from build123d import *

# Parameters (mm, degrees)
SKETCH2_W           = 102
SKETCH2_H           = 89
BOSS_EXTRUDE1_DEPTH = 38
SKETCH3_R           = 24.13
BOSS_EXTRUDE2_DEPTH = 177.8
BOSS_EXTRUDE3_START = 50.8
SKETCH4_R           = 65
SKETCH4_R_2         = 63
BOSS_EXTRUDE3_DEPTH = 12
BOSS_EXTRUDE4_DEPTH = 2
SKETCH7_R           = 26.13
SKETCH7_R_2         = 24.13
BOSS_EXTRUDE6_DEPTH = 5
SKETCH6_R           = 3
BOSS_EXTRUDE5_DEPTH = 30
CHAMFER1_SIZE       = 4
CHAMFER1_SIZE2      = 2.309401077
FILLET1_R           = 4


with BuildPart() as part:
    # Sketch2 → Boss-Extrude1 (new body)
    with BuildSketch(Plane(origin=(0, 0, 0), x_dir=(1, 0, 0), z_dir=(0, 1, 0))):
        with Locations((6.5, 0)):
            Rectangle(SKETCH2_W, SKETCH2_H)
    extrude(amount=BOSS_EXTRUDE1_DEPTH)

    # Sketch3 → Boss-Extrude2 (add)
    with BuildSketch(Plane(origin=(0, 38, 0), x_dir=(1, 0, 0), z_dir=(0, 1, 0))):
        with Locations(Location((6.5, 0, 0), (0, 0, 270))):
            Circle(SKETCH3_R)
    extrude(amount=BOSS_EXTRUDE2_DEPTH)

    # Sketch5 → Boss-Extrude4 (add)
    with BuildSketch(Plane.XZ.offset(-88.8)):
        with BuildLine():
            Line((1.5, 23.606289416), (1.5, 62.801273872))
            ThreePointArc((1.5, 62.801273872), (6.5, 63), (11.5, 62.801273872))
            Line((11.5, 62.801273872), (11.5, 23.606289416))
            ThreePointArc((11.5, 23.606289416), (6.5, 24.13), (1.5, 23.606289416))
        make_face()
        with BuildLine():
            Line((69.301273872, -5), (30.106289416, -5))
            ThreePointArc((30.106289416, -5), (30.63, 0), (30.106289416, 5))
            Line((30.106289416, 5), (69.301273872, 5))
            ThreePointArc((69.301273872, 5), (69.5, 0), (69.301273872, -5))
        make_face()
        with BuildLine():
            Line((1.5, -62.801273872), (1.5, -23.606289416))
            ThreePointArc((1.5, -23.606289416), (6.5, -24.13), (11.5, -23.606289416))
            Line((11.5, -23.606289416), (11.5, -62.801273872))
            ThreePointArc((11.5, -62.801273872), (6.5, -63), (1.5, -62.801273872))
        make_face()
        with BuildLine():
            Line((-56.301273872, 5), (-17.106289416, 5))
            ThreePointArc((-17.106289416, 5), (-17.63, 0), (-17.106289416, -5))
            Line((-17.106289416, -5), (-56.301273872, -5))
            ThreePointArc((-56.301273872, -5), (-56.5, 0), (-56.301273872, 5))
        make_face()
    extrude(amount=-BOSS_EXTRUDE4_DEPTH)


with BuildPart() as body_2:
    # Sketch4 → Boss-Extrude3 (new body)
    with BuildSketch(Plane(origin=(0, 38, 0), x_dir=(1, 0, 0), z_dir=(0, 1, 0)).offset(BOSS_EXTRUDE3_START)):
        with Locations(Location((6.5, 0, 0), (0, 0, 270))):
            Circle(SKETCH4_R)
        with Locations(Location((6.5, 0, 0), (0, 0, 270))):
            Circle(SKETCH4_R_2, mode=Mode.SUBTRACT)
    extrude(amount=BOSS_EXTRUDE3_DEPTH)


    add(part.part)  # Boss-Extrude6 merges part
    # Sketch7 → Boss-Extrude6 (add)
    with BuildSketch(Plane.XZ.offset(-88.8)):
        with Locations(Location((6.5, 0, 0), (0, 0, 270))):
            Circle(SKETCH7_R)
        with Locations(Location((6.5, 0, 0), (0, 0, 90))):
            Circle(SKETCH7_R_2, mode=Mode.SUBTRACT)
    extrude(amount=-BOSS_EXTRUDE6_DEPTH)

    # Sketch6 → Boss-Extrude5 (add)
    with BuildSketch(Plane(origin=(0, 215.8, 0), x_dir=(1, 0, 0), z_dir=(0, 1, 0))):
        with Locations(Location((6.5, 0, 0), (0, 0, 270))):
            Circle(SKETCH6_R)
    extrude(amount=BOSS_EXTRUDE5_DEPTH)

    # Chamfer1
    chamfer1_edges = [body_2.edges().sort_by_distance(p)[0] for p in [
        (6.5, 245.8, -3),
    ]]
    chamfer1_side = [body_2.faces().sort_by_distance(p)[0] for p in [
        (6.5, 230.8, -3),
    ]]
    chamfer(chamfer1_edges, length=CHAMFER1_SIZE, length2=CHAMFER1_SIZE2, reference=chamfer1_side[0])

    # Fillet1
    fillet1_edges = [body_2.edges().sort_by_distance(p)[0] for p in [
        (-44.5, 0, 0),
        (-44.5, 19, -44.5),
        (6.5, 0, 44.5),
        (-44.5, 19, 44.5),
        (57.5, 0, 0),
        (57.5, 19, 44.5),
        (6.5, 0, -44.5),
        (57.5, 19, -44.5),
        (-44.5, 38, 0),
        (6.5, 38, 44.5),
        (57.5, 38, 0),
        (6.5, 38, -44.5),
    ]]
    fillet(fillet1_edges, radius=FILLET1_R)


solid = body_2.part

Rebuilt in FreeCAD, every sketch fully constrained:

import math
import FreeCAD as App
import Part
import Sketcher

V = App.Vector
Q = App.Units.Quantity


def edges_at(feature, points):
    """Names of the edges that pass closest to the given points."""
    edges = feature.Shape.Edges
    near = lambda p: min(range(len(edges)), key=lambda i: edges[i].distToShape(Part.Vertex(*p))[0])
    return sorted({f"Edge{near(p) + 1}" for p in points})

doc = App.newDocument("Part")
body = doc.addObject("PartDesign::Body", "Body")

sketch1 = doc.addObject("Sketcher::SketchObject", "Sketch")
body.addObject(sketch1)
sketch1.AttachmentSupport = (doc.XZ_Plane, [""])
sketch1.MapMode = "FlatFace"
sketch1.addGeometry([
    Part.LineSegment(V(-44.5, -44.5, 0), V(-44.5, 44.5, 0)),
    Part.LineSegment(V(-44.5, 44.5, 0), V(57.5, 44.5, 0)),
    Part.LineSegment(V(57.5, 44.5, 0), V(57.5, -44.5, 0)),
    Part.LineSegment(V(57.5, -44.5, 0), V(-44.5, -44.5, 0)),
], False)
sketch1.addConstraint([
    Sketcher.Constraint("Coincident", 0, 2, 1, 1),
    Sketcher.Constraint("Coincident", 1, 2, 2, 1),
    Sketcher.Constraint("Coincident", 2, 2, 3, 1),
    Sketcher.Constraint("Coincident", 3, 2, 0, 1),
    Sketcher.Constraint("Vertical", 0),
    Sketcher.Constraint("Horizontal", 1),
    Sketcher.Constraint("Vertical", 2),
    Sketcher.Constraint("Horizontal", 3),
    Sketcher.Constraint("DistanceX", 1, 1, 1, 2, Q("102 mm")),
    Sketcher.Constraint("DistanceY", 0, 1, 0, 2, Q("89 mm")),
    Sketcher.Constraint("DistanceX", 0, 2, -1, 1, Q("44.5 mm")),
    Sketcher.Constraint("DistanceY", -1, 1, 0, 2, Q("44.5 mm")),
])
pad1 = doc.addObject("PartDesign::Pad", "Pad")
body.addObject(pad1)
pad1.Profile = sketch1
pad1.Length = 38
pad1.Reversed = True

sketch2 = doc.addObject("Sketcher::SketchObject", "Sketch001")
body.addObject(sketch2)
sketch2.AttachmentSupport = (doc.XZ_Plane, [""])
sketch2.MapMode = "FlatFace"
sketch2.AttachmentOffset = App.Placement(V(0, 0, -38), App.Rotation())
sketch2.addGeometry(Part.Circle(V(6.5, 0, 0), V(0, 0, 1), 24.13), False)
sketch2.addConstraint([
    Sketcher.Constraint("PointOnObject", 0, 3, -1),
    Sketcher.Constraint("Diameter", 0, Q("48.26 mm")),
    Sketcher.Constraint("DistanceX", -1, 1, 0, 3, Q("6.5 mm")),
])
pad2 = doc.addObject("PartDesign::Pad", "Pad001")
body.addObject(pad2)
pad2.Profile = sketch2
pad2.Length = 177.8
pad2.Reversed = True

sketch3 = doc.addObject("Sketcher::SketchObject", "Sketch002")
body.addObject(sketch3)
sketch3.AttachmentSupport = (doc.XZ_Plane, [""])
sketch3.MapMode = "FlatFace"
sketch3.AttachmentOffset = App.Placement(V(0, 0, -88.8), App.Rotation())
sketch3.addGeometry([
    Part.LineSegment(V(1.5, 62.801274, 0), V(1.5, 23.606289, 0)),
    Part.ArcOfCircle(Part.Circle(V(6.5, 0, 0), V(0, 0, 1), 24.13), math.radians(78.041044), math.radians(101.958956)),
    Part.LineSegment(V(11.5, 23.606289, 0), V(11.5, 62.801274, 0)),
    Part.ArcOfCircle(Part.Circle(V(6.5, 0, 0), V(0, 0, 1), 63), math.radians(85.447929), math.radians(94.552071)),
    Part.LineSegment(V(30.106289, -5, 0), V(69.301274, -5, 0)),
    Part.ArcOfCircle(Part.Circle(V(6.5, 0, 0), V(0, 0, 1), 63), math.radians(-4.552071), math.radians(4.552071)),
    Part.LineSegment(V(69.301274, 5, 0), V(30.106289, 5, 0)),
    Part.ArcOfCircle(Part.Circle(V(6.5, 0, 0), V(0, 0, 1), 24.13), math.radians(-11.958956), math.radians(11.958956)),
    Part.LineSegment(V(1.5, -23.606289, 0), V(1.5, -62.801274, 0)),
    Part.ArcOfCircle(Part.Circle(V(6.5, 0, 0), V(0, 0, 1), 63), math.radians(-94.552071), math.radians(-85.447929)),
    Part.LineSegment(V(11.5, -62.801274, 0), V(11.5, -23.606289, 0)),
    Part.ArcOfCircle(Part.Circle(V(6.5, 0, 0), V(0, 0, 1), 24.13), math.radians(-101.958956), math.radians(-78.041044)),
    Part.LineSegment(V(-17.106289, 5, 0), V(-56.301274, 5, 0)),
    Part.ArcOfCircle(Part.Circle(V(6.5, 0, 0), V(0, 0, 1), 63), math.radians(175.447929), math.radians(184.552071)),
    Part.LineSegment(V(-56.301274, -5, 0), V(-17.106289, -5, 0)),
    Part.ArcOfCircle(Part.Circle(V(6.5, 0, 0), V(0, 0, 1), 24.13), math.radians(168.041044), math.radians(191.958956)),
], False)
sketch3.addConstraint([
    Sketcher.Constraint("Coincident", 0, 2, 1, 2),
    Sketcher.Constraint("Coincident", 1, 1, 2, 1),
    Sketcher.Constraint("Coincident", 2, 2, 3, 1),
    Sketcher.Constraint("Coincident", 3, 2, 0, 1),
    Sketcher.Constraint("Coincident", 4, 2, 5, 1),
    Sketcher.Constraint("Coincident", 5, 2, 6, 1),
    Sketcher.Constraint("Coincident", 6, 2, 7, 2),
    Sketcher.Constraint("Coincident", 7, 1, 4, 1),
    Sketcher.Constraint("Coincident", 8, 2, 9, 1),
    Sketcher.Constraint("Coincident", 9, 2, 10, 1),
    Sketcher.Constraint("Coincident", 10, 2, 11, 2),
    Sketcher.Constraint("Coincident", 11, 1, 8, 1),
    Sketcher.Constraint("Coincident", 12, 2, 13, 1),
    Sketcher.Constraint("Coincident", 13, 2, 14, 1),
    Sketcher.Constraint("Coincident", 14, 2, 15, 2),
    Sketcher.Constraint("Coincident", 15, 1, 12, 1),
    Sketcher.Constraint("Vertical", 0),
    Sketcher.Constraint("Vertical", 2),
    Sketcher.Constraint("Horizontal", 4),
    Sketcher.Constraint("Horizontal", 6),
    Sketcher.Constraint("Vertical", 8),
    Sketcher.Constraint("Vertical", 10),
    Sketcher.Constraint("Horizontal", 12),
    Sketcher.Constraint("Horizontal", 14),
    Sketcher.Constraint("Coincident", 3, 3, 1, 3),
    Sketcher.Constraint("Coincident", 5, 3, 1, 3),
    Sketcher.Constraint("Coincident", 7, 3, 1, 3),
    Sketcher.Constraint("Coincident", 9, 3, 1, 3),
    Sketcher.Constraint("Coincident", 11, 3, 1, 3),
    Sketcher.Constraint("Coincident", 13, 3, 1, 3),
    Sketcher.Constraint("Coincident", 15, 3, 1, 3),
    Sketcher.Constraint("Equal", 3, 5),
    Sketcher.Constraint("Equal", 1, 7),
    Sketcher.Constraint("Equal", 5, 9),
    Sketcher.Constraint("Equal", 7, 11),
    Sketcher.Constraint("Equal", 9, 13),
    Sketcher.Constraint("Equal", 11, 15),
    Sketcher.Constraint("Symmetric", 4, 2, 5, 2, -1),
    Sketcher.Constraint("Horizontal", 0, 2, 1, 1),
    Sketcher.Constraint("Horizontal", 8, 2, 9, 2),
    Sketcher.Constraint("Horizontal", 6, 2, 12, 2),
    Sketcher.Constraint("Horizontal", 7, 1, 13, 2),
    Sketcher.Constraint("Vertical", 3, 2, 8, 2),
    Sketcher.Constraint("Equal", 14, 0),
    Sketcher.Constraint("Radius", 3, Q("63 mm")),
    Sketcher.Constraint("Radius", 1, Q("24.13 mm")),
    Sketcher.Constraint("DistanceY", 4, 2, -1, 1, Q("5 mm")),
    Sketcher.Constraint("DistanceX", -1, 1, 1, 3, Q("6.5 mm")),
])
pad3 = doc.addObject("PartDesign::Pad", "Pad002")
body.addObject(pad3)
pad3.Profile = sketch3
pad3.Length = 2
pad3.Reversed = True
body2 = doc.addObject("PartDesign::Body", "Body001")

sketch4 = doc.addObject("Sketcher::SketchObject", "Sketch003")
body2.addObject(sketch4)
sketch4.AttachmentSupport = (doc.getObject("XZ_Plane001"), [""])
sketch4.MapMode = "FlatFace"
sketch4.AttachmentOffset = App.Placement(V(0, 0, -88.8), App.Rotation())
sketch4.addGeometry([
    Part.Circle(V(6.5, 0, 0), V(0, 0, 1), 65),
    Part.Circle(V(6.5, 0, 0), V(0, 0, 1), 63),
], False)
sketch4.addConstraint([
    Sketcher.Constraint("Coincident", 1, 3, 0, 3),
    Sketcher.Constraint("PointOnObject", 0, 3, -1),
    Sketcher.Constraint("Diameter", 0, Q("130 mm")),
    Sketcher.Constraint("Diameter", 1, Q("126 mm")),
    Sketcher.Constraint("DistanceX", -1, 1, 0, 3, Q("6.5 mm")),
])
pad4 = doc.addObject("PartDesign::Pad", "Pad003")
body2.addObject(pad4)
pad4.Profile = sketch4
pad4.Length = 12
pad4.Reversed = True
doc.recompute()

boolean = doc.addObject("PartDesign::Boolean", "Boolean")
body2.addObject(boolean)
boolean.Type = "Fuse"
boolean.addObjects([body])

sketch5 = doc.addObject("Sketcher::SketchObject", "Sketch004")
body2.addObject(sketch5)
sketch5.AttachmentSupport = (doc.getObject("XZ_Plane001"), [""])
sketch5.MapMode = "FlatFace"
sketch5.AttachmentOffset = App.Placement(V(0, 0, -88.8), App.Rotation())
sketch5.addGeometry([
    Part.Circle(V(6.5, 0, 0), V(0, 0, 1), 26.13),
    Part.Circle(V(6.5, 0, 0), V(0, 0, 1), 24.13),
], False)
sketch5.addConstraint([
    Sketcher.Constraint("Coincident", 1, 3, 0, 3),
    Sketcher.Constraint("PointOnObject", 0, 3, -1),
    Sketcher.Constraint("Diameter", 0, Q("52.26 mm")),
    Sketcher.Constraint("Diameter", 1, Q("48.26 mm")),
    Sketcher.Constraint("DistanceX", -1, 1, 0, 3, Q("6.5 mm")),
])
pad5 = doc.addObject("PartDesign::Pad", "Pad004")
body2.addObject(pad5)
pad5.Profile = sketch5
pad5.Length = 5
pad5.Reversed = True

sketch6 = doc.addObject("Sketcher::SketchObject", "Sketch005")
body2.addObject(sketch6)
sketch6.AttachmentSupport = (doc.getObject("XZ_Plane001"), [""])
sketch6.MapMode = "FlatFace"
sketch6.AttachmentOffset = App.Placement(V(0, 0, -215.8), App.Rotation())
sketch6.addGeometry(Part.Circle(V(6.5, 0, 0), V(0, 0, 1), 3), False)
sketch6.addConstraint([
    Sketcher.Constraint("PointOnObject", 0, 3, -1),
    Sketcher.Constraint("Diameter", 0, Q("6 mm")),
    Sketcher.Constraint("DistanceX", -1, 1, 0, 3, Q("6.5 mm")),
])
pad6 = doc.addObject("PartDesign::Pad", "Pad005")
body2.addObject(pad6)
pad6.Profile = sketch6
pad6.Length = 30
pad6.Reversed = True
doc.recompute()

chamfer = doc.addObject("PartDesign::Chamfer", "Chamfer")
body2.addObject(chamfer)
chamfer.Base = (pad6, edges_at(pad6, [(6.5, 245.8, -3)]))
chamfer.ChamferType = "Two distances"
chamfer.Size = 4
chamfer.Size2 = 2.309401
doc.recompute()

fillet = doc.addObject("PartDesign::Fillet", "Fillet")
body2.addObject(fillet)
fillet.Base = (chamfer, edges_at(chamfer, [
    (-44.5, 0, 0),
    (-44.5, 19, -44.5),
    (6.5, 0, 44.5),
    (-44.5, 19, 44.5),
    (57.5, 0, 0),
    (57.5, 19, 44.5),
    (6.5, 0, -44.5),
    (57.5, 19, -44.5),
    (-44.5, 38, 0),
    (6.5, 38, 44.5),
    (57.5, 38, 0),
    (6.5, 38, -44.5),
]))
fillet.Radius = 4

doc.recompute()
